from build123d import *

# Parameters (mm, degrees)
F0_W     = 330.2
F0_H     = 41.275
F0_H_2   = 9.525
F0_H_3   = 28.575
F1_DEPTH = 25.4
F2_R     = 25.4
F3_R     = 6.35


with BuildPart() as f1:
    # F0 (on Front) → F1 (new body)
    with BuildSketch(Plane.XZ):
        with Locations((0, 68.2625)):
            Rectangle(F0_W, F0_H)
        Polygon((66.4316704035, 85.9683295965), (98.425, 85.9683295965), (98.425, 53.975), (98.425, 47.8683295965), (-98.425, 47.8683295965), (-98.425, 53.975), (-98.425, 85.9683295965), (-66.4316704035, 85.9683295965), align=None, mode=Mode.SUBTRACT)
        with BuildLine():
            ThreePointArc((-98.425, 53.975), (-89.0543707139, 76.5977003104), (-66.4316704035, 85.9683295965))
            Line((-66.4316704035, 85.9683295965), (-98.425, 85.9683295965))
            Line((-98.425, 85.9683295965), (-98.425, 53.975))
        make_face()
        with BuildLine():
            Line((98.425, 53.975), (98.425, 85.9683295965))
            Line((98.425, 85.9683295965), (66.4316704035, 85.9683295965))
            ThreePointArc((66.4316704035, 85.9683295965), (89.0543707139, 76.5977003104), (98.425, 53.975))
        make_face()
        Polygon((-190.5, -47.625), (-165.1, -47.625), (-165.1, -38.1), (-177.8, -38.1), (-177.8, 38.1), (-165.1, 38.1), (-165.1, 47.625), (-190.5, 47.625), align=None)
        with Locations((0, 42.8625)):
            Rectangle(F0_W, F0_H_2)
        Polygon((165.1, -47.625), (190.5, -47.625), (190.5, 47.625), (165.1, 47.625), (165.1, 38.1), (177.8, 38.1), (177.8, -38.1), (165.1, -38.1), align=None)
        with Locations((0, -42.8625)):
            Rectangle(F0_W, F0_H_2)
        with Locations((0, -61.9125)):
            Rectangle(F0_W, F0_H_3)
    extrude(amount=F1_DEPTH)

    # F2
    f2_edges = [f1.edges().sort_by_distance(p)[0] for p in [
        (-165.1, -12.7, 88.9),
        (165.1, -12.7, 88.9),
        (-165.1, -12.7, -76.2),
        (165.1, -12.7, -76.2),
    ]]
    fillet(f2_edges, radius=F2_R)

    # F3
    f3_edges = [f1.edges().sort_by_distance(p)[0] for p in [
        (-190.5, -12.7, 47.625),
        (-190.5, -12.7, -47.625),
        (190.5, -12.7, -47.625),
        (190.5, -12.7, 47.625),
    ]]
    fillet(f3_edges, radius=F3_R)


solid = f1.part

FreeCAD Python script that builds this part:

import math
import FreeCAD as App
import Part
import Sketcher

V = App.Vector
Q = App.Units.Quantity


def edges_at(feature, points):
    """Names of the edges that pass closest to the given points."""
    edges = feature.Shape.Edges
    near = lambda p: min(range(len(edges)), key=lambda i: edges[i].distToShape(Part.Vertex(*p))[0])
    return sorted({f"Edge{near(p) + 1}" for p in points})


def add_polygon(sketch, points):
    """Adds a closed chain of lines whose ends are joined by coincident constraints."""
    first, n = sketch.GeometryCount, len(points)
    for a, b in zip(points, points[1:] + points[:1]):
        sketch.addGeometry(Part.LineSegment(App.Vector(*a, 0), App.Vector(*b, 0)), False)
    for i in range(n):
        sketch.addConstraint(Sketcher.Constraint("Coincident", first + i, 2, first + (i + 1) % n, 1))

doc = App.newDocument("Part")
body = doc.addObject("PartDesign::Body", "Body")

# Sketch on XZ plane
sketch1 = body.newObject("Sketcher::SketchObject", "Sketch")
sketch1.AttachmentSupport = (doc.getObject("XZ_Plane"), [""])
sketch1.MapMode = "FlatFace"
add_polygon(sketch1, [(-165.1, 88.9), (-165.1, 47.625), (-190.5, 47.625), (-190.5, -47.625), (-165.1, -47.625), (-165.1, -76.2), (165.1, -76.2), (165.1, -47.625), (190.5, -47.625), (190.5, 47.625), (165.1, 47.625), (165.1, 88.9)])  # lines 0-11
add_polygon(sketch1, [(-177.8, -38.1), (-177.8, 38.1), (177.8, 38.1), (177.8, -38.1)])  # lines 12-15
sketch1.addGeometry(Part.LineSegment(V(-66.43167, 85.96833, 0), V(66.43167, 85.96833, 0)), False)  # 16
sketch1.addGeometry(Part.ArcOfCircle(Part.Circle(V(66.43167, 53.975, 0), V(0, 0, 1), 31.99333), math.radians(0), math.radians(90)), False)  # 17
sketch1.addGeometry(Part.LineSegment(V(98.425, 53.975, 0), V(98.425, 47.86833, 0)), False)  # 18
sketch1.addGeometry(Part.LineSegment(V(98.425, 47.86833, 0), V(-98.425, 47.86833, 0)), False)  # 19
sketch1.addGeometry(Part.LineSegment(V(-98.425, 47.86833, 0), V(-98.425, 53.975, 0)), False)  # 20
sketch1.addGeometry(Part.ArcOfCircle(Part.Circle(V(-66.43167, 53.975, 0), V(0, 0, 1), 31.99333), math.radians(90), math.radians(180)), False)  # 21
sketch1.addConstraint(Sketcher.Constraint("Tangent", 16, 2, 17, 2))
sketch1.addConstraint(Sketcher.Constraint("Tangent", 17, 1, 18, 1))
sketch1.addConstraint(Sketcher.Constraint("Coincident", 18, 2, 19, 1))
sketch1.addConstraint(Sketcher.Constraint("Coincident", 19, 2, 20, 1))
sketch1.addConstraint(Sketcher.Constraint("Tangent", 20, 2, 21, 2))
sketch1.addConstraint(Sketcher.Constraint("Tangent", 21, 1, 16, 1))
sketch1.addConstraint(Sketcher.Constraint("Vertical", 0))
sketch1.addConstraint(Sketcher.Constraint("Horizontal", 1))
sketch1.addConstraint(Sketcher.Constraint("Vertical", 2))
sketch1.addConstraint(Sketcher.Constraint("Horizontal", 3))
sketch1.addConstraint(Sketcher.Constraint("Vertical", 4))
sketch1.addConstraint(Sketcher.Constraint("Horizontal", 5))
sketch1.addConstraint(Sketcher.Constraint("Vertical", 6))
sketch1.addConstraint(Sketcher.Constraint("Horizontal", 7))
sketch1.addConstraint(Sketcher.Constraint("Vertical", 8))
sketch1.addConstraint(Sketcher.Constraint("Horizontal", 9))
sketch1.addConstraint(Sketcher.Constraint("Vertical", 10))
sketch1.addConstraint(Sketcher.Constraint("Horizontal", 11))
sketch1.addConstraint(Sketcher.Constraint("Vertical", 12))
sketch1.addConstraint(Sketcher.Constraint("Horizontal", 13))
sketch1.addConstraint(Sketcher.Constraint("Vertical", 14))
sketch1.addConstraint(Sketcher.Constraint("Horizontal", 15))
sketch1.addConstraint(Sketcher.Constraint("Horizontal", 16))
sketch1.addConstraint(Sketcher.Constraint("Vertical", 18))
sketch1.addConstraint(Sketcher.Constraint("Horizontal", 19))
sketch1.addConstraint(Sketcher.Constraint("Vertical", 20))
sketch1.addConstraint(Sketcher.Constraint("Equal", 17, 21))
sketch1.addConstraint(Sketcher.Constraint("Symmetric", 0, 2, 6, 2, -1, 1))
sketch1.addConstraint(Sketcher.Constraint("Symmetric", 2, 2, 8, 2, -1, 1))
sketch1.addConstraint(Sketcher.Constraint("Symmetric", 12, 2, 14, 2, -1, 1))
sketch1.addConstraint(Sketcher.Constraint("Symmetric", 3, 2, 6, 2, -2))
sketch1.addConstraint(Sketcher.Constraint("Vertical", 6, 2, 9, 2))
sketch1.addConstraint(Sketcher.Constraint("DistanceX", 1, 2, 1, 1, Q("1 in")))
sketch1.addConstraint(Sketcher.Constraint("DistanceX", 5, 1, 5, 2, Q("13 in")))
sketch1.addConstraint(Sketcher.Constraint("DistanceX", 13, 1, 13, 2, Q("14 in")))
sketch1.addConstraint(Sketcher.Constraint("DistanceY", 12, 1, 12, 2, Q("3 in")))
sketch1.addConstraint(Sketcher.Constraint("DistanceY", 4, 2, -1, 1, Q("3 in")))
sketch1.addConstraint(Sketcher.Constraint("DistanceY", 2, 2, 21, 3, Q("4 in")))
sketch1.addConstraint(Sketcher.Constraint("DistanceY", 12, 2, 11, 2, Q("2 in")))
sketch1.addConstraint(Sketcher.Constraint("DistanceX", 19, 2, 19, 1, Q("7.75 in")))
sketch1.addConstraint(Sketcher.Constraint("DistanceY", 2, 2, 2, 1, Q("3.75 in")))
sketch1.addConstraint(Sketcher.Constraint("DistanceY", 18, 2, 16, 2, Q("1.5 in")))
sketch1.addConstraint(Sketcher.Constraint("DistanceX", -1, 1, 17, 1, Q("3.875 in")))
sketch1.addConstraint(Sketcher.Constraint("Radius", 17, 31.99333))
pad1 = body.newObject("PartDesign::Pad", "Pad")
pad1.Profile = sketch1
pad1.Length = Q("1 in")
doc.recompute()

fillet = body.newObject("PartDesign::Fillet", "Fillet")
fillet.Base = (pad1, edges_at(pad1, [
    (-165.1, -12.7, 88.9),
    (165.1, -12.7, 88.9),
    (-165.1, -12.7, -76.2),
    (165.1, -12.7, -76.2),
]))
fillet.Radius = Q("1 in")
doc.recompute()

fillet2 = body.newObject("PartDesign::Fillet", "Fillet001")
fillet2.Base = (fillet, edges_at(fillet, [
    (-190.5, -12.7, 47.625),
    (-190.5, -12.7, -47.625),
    (190.5, -12.7, -47.625),
    (190.5, -12.7, 47.625),
]))
fillet2.Radius = Q("0.25 in")

doc.recompute()
